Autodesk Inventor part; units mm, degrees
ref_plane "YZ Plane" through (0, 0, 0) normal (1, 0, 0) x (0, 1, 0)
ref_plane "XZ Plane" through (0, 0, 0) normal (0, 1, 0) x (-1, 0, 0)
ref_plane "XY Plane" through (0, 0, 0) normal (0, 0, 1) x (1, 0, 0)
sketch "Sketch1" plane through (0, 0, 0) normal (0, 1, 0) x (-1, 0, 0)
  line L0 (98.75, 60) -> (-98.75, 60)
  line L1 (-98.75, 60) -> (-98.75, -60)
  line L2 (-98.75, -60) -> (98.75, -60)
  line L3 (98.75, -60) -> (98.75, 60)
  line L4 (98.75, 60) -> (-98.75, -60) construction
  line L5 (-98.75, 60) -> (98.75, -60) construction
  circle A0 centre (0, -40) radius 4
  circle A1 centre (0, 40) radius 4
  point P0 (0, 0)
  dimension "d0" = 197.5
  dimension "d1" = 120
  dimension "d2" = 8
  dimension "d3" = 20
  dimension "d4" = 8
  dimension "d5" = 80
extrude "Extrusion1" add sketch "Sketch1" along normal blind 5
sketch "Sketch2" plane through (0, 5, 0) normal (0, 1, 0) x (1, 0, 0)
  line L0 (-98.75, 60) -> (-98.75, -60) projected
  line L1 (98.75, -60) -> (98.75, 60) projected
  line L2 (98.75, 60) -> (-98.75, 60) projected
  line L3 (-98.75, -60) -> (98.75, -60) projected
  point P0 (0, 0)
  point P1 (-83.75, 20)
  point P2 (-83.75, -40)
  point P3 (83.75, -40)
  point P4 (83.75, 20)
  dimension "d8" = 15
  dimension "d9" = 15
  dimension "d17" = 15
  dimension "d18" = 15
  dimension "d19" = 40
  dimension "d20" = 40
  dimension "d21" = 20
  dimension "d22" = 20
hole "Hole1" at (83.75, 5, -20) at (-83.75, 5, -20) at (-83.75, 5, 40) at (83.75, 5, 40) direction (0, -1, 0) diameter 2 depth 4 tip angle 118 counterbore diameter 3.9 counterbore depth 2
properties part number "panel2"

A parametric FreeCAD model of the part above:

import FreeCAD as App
import Part
import Sketcher

V = App.Vector


def add_polygon(sketch, points):
    """Adds a closed chain of lines whose ends are joined by coincident constraints."""
    first, n = sketch.GeometryCount, len(points)
    for a, b in zip(points, points[1:] + points[:1]):
        sketch.addGeometry(Part.LineSegment(App.Vector(*a, 0), App.Vector(*b, 0)), False)
    for i in range(n):
        sketch.addConstraint(Sketcher.Constraint("Coincident", first + i, 2, first + (i + 1) % n, 1))

doc = App.newDocument("Part")
params = doc.addObject("Spreadsheet::Sheet", "Params")
for row, (alias, value) in enumerate([
    ("sketch1_diameter", "8 mm"),
    ("sketch1_height", "120 mm"),
    ("sketch1_width", "197.5 mm"),
    ("pad1_length", "5 mm"),
    ("sketch2_diameter", "2 mm"),
    ("hole_diameter", "2 mm"),
    ("hole_depth", "4 mm"),
    ("hole_cbore_diameter", "3.9 mm"),
    ("hole_cbore_depth", "2 mm"),
], start=1):
    params.set(f"A{row}", alias)
    params.set(f"B{row}", "=" + value)
    params.setAlias(f"B{row}", alias)

body = doc.addObject("PartDesign::Body", "Body")

# Sketch on XZ plane
sketch1 = doc.addObject("Sketcher::SketchObject", "Sketch")
body.addObject(sketch1)
sketch1.AttachmentSupport = (doc.XZ_Plane, [""])
sketch1.MapMode = "FlatFace"
add_polygon(sketch1, [(-98.8, -60), (-98.8, 60), (98.8, 60), (98.8, -60)])  # lines 0-3
sketch1.addGeometry(Part.Circle(V(0, -40, 0), V(0, 0, 1), 4), False)  # 4
sketch1.addGeometry(Part.Circle(V(0, 40, 0), V(0, 0, 1), 4), False)  # 5
sketch1.addConstraint(Sketcher.Constraint("Vertical", 0))
sketch1.addConstraint(Sketcher.Constraint("Horizontal", 1))
sketch1.addConstraint(Sketcher.Constraint("Vertical", 2))
sketch1.addConstraint(Sketcher.Constraint("Horizontal", 3))
sketch1.addConstraint(Sketcher.Constraint("Equal", 4, 5))
sketch1.addConstraint(Sketcher.Constraint("Symmetric", 4, 3, 5, 3, -1, 1))
sketch1.addConstraint(Sketcher.Constraint("Symmetric", 0, 2, 2, 2, -1, 1))
sketch1.addConstraint(Sketcher.Constraint("PointOnObject", 4, 3, -2))
sketch1.addConstraint(Sketcher.Constraint("Diameter", 4, 8.0))
sketch1.addConstraint(Sketcher.Constraint("DistanceY", 0, 1, 0, 2, 120.0))
sketch1.addConstraint(Sketcher.Constraint("DistanceX", 1, 1, 1, 2, 197.5))
sketch1.addConstraint(Sketcher.Constraint("DistanceY", 4, 3, 5, 3, 80.0))
sketch1.setExpression("Constraints[12]", "Params.sketch1_diameter")
sketch1.setExpression("Constraints[13]", "Params.sketch1_height")
sketch1.setExpression("Constraints[14]", "Params.sketch1_width")
pad1 = doc.addObject("PartDesign::Pad", "Pad")
body.addObject(pad1)
pad1.Profile = sketch1
pad1.setExpression("Length", "Params.pad1_length")
pad1.Reversed = True

# Sketch on XZ plane
sketch2 = doc.addObject("Sketcher::SketchObject", "Sketch001")
body.addObject(sketch2)
sketch2.AttachmentSupport = (doc.XZ_Plane, [""])
sketch2.MapMode = "FlatFace"
sketch2.AttachmentOffset = App.Placement(V(0, 0, -5), App.Rotation())
sketch2.addGeometry(Part.Circle(V(83.8, -20, 0), V(0, 0, 1), 1), False)
sketch2.addGeometry(Part.Circle(V(-83.8, -20, 0), V(0, 0, 1), 1), False)
sketch2.addGeometry(Part.Circle(V(-83.8, 40, 0), V(0, 0, 1), 1), False)
sketch2.addGeometry(Part.Circle(V(83.8, 40, 0), V(0, 0, 1), 1), False)
sketch2.addConstraint(Sketcher.Constraint("Equal", 0, 1))
sketch2.addConstraint(Sketcher.Constraint("Equal", 1, 2))
sketch2.addConstraint(Sketcher.Constraint("Equal", 2, 3))
sketch2.addConstraint(Sketcher.Constraint("Symmetric", 0, 3, 1, 3, -2))
sketch2.addConstraint(Sketcher.Constraint("Symmetric", 2, 3, 3, 3, -2))
sketch2.addConstraint(Sketcher.Constraint("Vertical", 1, 3, 2, 3))
sketch2.addConstraint(Sketcher.Constraint("Diameter", 0, 2.0))
sketch2.addConstraint(Sketcher.Constraint("DistanceY", 0, 3, -1, 1, 20.0))
sketch2.addConstraint(Sketcher.Constraint("DistanceY", -1, 1, 2, 3, 40.0))
sketch2.addConstraint(Sketcher.Constraint("DistanceX", 1, 3, 0, 3, 167.5))
sketch2.setExpression("Constraints[6]", "Params.sketch2_diameter")
doc.recompute()
hole = doc.addObject("PartDesign::Hole", "Hole")
body.addObject(hole)
hole.Profile = sketch2
hole.ThreadType = "None"
hole.setExpression("Diameter", "Params.hole_diameter")
hole.DepthType = "Dimension"
hole.setExpression("Depth", "Params.hole_depth")
hole.DrillPoint = "Angled"
hole.DrillPointAngle = 118
hole.HoleCutType = "Counterbore"
hole.setExpression("HoleCutDiameter", "Params.hole_cbore_diameter")
hole.setExpression("HoleCutDepth", "Params.hole_cbore_depth")
hole.Reversed = True

doc.recompute()
